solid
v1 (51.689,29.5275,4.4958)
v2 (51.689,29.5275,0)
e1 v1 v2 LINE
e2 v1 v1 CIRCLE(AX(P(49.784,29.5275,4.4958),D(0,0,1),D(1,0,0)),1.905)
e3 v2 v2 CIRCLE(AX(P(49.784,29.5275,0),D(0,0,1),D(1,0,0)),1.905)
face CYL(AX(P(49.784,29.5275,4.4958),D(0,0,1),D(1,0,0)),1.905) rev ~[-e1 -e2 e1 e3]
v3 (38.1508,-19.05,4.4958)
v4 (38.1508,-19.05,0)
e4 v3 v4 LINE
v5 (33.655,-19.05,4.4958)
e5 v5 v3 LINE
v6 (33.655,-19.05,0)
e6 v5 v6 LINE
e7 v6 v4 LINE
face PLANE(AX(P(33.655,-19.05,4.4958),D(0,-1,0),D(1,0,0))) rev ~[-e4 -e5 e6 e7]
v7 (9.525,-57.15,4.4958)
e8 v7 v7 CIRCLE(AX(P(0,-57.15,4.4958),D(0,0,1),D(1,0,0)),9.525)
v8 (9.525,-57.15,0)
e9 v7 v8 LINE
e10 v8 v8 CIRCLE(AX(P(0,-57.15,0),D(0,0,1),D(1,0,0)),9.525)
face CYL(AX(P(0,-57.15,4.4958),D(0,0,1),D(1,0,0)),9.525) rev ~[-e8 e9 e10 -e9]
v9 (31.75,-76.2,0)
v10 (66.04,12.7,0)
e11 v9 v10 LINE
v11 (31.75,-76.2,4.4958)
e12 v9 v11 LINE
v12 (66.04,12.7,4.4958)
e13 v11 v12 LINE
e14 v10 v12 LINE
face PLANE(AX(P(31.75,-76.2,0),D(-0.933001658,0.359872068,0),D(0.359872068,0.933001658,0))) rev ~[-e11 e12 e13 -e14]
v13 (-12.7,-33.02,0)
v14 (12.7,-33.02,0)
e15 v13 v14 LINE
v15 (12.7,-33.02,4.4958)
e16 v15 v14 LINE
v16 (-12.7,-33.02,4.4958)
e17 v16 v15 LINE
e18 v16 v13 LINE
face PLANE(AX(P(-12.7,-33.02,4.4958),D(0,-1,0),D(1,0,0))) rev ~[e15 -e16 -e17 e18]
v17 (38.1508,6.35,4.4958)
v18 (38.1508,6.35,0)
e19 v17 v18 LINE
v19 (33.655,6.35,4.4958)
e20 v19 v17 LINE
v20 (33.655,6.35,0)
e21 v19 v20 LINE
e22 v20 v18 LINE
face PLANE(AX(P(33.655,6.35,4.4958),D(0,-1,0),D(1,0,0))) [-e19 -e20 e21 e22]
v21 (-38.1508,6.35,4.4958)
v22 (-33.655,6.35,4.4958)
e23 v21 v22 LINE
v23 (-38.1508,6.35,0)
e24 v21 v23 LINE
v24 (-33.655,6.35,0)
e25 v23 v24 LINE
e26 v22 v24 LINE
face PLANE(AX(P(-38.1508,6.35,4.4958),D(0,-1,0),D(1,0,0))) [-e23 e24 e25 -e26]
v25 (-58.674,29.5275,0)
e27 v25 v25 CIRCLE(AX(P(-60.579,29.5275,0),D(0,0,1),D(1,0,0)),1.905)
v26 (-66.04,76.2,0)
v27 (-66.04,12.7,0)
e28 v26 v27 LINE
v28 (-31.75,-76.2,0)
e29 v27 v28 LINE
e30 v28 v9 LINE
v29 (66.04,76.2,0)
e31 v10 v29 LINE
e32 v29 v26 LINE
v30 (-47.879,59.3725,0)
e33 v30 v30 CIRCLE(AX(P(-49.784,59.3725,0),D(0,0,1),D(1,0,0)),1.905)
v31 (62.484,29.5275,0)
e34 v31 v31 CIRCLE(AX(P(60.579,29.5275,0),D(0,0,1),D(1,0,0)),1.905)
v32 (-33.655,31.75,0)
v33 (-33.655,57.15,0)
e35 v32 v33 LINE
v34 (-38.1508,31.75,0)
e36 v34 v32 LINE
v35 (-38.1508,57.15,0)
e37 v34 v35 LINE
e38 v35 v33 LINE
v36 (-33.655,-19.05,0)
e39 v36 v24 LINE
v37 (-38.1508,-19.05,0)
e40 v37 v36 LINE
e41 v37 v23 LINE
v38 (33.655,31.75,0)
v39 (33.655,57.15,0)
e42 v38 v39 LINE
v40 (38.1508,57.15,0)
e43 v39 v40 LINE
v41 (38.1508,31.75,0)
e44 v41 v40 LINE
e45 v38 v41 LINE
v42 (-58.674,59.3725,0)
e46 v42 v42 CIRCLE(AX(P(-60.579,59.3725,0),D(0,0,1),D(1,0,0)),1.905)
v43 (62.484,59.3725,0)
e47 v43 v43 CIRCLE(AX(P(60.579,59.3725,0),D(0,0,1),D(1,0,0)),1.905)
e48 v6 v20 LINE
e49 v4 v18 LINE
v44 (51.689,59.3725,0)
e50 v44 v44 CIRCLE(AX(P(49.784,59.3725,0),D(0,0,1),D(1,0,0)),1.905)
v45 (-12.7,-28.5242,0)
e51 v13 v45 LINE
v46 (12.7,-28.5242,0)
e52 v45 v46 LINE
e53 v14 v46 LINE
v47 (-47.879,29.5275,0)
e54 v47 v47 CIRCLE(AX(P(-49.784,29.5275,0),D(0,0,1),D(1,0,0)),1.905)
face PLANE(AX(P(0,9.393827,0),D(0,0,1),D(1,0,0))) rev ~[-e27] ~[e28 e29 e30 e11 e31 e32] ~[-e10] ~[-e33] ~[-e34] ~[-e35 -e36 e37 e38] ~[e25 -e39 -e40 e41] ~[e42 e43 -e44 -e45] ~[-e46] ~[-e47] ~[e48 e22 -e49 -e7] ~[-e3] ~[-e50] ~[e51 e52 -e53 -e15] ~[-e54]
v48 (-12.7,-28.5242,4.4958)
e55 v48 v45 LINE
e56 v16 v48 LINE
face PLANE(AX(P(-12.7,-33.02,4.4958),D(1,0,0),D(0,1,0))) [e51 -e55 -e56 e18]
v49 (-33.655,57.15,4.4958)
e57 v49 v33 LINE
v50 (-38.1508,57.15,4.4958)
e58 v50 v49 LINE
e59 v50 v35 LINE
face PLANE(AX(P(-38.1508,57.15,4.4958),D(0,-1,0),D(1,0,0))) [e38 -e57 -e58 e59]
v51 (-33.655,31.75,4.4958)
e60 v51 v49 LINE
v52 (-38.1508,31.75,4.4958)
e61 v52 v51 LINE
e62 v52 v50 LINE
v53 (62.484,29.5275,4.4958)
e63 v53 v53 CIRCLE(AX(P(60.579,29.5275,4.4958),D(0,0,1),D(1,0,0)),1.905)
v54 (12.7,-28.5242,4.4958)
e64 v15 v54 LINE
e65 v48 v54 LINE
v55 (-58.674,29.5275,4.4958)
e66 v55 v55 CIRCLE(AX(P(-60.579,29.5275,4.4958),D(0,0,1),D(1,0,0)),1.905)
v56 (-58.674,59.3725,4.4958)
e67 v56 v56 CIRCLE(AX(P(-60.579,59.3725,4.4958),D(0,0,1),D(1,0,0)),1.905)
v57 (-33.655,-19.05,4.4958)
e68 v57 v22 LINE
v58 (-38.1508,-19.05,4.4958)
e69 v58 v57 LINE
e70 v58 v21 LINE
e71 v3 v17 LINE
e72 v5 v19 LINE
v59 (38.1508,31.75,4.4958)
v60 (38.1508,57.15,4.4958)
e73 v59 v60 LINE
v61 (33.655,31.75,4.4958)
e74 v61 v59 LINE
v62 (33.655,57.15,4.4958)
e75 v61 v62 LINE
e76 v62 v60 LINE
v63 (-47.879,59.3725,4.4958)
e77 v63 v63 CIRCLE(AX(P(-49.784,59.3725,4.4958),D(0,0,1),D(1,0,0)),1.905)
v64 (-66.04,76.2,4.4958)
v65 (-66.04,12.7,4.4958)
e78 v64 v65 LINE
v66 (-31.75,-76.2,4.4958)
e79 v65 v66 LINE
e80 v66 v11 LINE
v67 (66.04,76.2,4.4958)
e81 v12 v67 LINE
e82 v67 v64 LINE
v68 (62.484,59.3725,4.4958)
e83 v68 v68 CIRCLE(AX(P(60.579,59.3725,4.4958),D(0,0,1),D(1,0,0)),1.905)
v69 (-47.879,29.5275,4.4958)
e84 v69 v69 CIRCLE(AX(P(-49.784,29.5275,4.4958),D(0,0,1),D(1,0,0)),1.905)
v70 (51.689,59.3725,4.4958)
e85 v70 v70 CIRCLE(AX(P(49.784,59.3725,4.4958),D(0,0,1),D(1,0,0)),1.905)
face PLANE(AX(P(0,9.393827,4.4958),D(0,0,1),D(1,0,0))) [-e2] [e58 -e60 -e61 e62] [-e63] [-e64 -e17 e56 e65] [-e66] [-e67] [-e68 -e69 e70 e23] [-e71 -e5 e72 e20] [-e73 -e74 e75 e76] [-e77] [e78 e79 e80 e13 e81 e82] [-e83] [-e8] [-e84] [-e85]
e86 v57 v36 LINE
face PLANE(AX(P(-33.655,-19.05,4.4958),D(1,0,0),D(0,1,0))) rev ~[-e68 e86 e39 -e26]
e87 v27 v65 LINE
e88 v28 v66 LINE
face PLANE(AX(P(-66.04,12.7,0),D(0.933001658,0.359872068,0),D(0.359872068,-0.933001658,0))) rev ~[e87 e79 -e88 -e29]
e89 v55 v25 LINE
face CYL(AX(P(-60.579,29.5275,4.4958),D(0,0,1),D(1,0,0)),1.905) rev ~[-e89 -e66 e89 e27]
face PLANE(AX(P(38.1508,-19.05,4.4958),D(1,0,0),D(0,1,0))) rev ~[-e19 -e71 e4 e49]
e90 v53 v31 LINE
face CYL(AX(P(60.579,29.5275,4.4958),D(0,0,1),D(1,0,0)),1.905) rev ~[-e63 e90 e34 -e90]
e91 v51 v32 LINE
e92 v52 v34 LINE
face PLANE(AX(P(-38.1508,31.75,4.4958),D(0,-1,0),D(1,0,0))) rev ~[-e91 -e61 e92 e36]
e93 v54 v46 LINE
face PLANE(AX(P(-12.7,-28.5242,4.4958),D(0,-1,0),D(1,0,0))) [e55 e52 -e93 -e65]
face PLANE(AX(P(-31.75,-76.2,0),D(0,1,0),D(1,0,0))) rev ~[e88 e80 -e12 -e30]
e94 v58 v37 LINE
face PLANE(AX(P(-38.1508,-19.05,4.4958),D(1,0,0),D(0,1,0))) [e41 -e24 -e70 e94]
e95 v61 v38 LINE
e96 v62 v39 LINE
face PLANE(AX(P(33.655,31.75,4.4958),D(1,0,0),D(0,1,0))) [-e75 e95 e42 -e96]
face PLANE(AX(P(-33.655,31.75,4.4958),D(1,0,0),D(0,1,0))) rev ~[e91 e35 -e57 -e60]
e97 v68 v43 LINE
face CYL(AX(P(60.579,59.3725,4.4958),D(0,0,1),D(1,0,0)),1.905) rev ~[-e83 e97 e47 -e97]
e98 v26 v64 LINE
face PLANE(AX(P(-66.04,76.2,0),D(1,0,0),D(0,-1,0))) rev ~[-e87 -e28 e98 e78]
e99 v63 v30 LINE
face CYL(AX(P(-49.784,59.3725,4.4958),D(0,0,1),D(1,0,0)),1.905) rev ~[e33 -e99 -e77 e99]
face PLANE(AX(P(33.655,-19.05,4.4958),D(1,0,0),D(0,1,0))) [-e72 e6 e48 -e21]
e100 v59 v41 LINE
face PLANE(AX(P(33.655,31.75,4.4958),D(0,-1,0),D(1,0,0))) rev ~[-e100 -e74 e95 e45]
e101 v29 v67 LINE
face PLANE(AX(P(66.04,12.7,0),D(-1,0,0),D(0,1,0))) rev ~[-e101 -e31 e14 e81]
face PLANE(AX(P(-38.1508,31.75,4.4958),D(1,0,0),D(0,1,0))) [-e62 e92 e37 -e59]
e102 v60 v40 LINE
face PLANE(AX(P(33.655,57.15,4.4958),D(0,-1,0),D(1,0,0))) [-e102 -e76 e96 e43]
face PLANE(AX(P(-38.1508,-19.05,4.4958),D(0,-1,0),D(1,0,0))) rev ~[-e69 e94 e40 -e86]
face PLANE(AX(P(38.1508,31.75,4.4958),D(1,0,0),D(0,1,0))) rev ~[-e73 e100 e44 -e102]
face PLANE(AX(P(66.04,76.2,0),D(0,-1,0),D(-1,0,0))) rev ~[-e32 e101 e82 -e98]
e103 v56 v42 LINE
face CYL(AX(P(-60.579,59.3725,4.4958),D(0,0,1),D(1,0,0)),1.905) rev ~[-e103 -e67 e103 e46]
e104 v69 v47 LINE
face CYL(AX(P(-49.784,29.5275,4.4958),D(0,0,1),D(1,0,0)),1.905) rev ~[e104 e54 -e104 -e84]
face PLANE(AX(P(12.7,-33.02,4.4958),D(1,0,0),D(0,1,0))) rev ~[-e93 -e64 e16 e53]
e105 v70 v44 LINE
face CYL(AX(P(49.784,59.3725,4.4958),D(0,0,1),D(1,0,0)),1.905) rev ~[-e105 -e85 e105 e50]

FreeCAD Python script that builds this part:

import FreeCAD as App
import Part
import Sketcher

V = App.Vector
Q = App.Units.Quantity


def add_polygon(sketch, points):
    """Adds a closed chain of lines whose ends are joined by coincident constraints."""
    first, n = sketch.GeometryCount, len(points)
    for a, b in zip(points, points[1:] + points[:1]):
        sketch.addGeometry(Part.LineSegment(App.Vector(*a, 0), App.Vector(*b, 0)), False)
    for i in range(n):
        sketch.addConstraint(Sketcher.Constraint("Coincident", first + i, 2, first + (i + 1) % n, 1))

doc = App.newDocument("Part")
params = doc.addObject("Spreadsheet::Sheet", "Params")
for row, (alias, value) in enumerate([
    ("sketch1_width", "5.2 in"),
    ("sketch1_width2", "2.5 in"),
    ("pad1_length", "0.177 in"),
    ("sketch2_diameter", "0.15 in"),
    ("sketch3_diameter", "0.75 in"),
    ("sketch3_width", "1 in"),
    ("sketch3_width2", "0.177 in"),
], start=1):
    params.set(f"A{row}", alias)
    params.set(f"B{row}", "=" + value)
    params.setAlias(f"B{row}", alias)

body = doc.addObject("PartDesign::Body", "Body")

# Sketch on XY plane
sketch1 = body.newObject("Sketcher::SketchObject", "Sketch")
sketch1.AttachmentSupport = (doc.getObject("XY_Plane"), [""])
sketch1.MapMode = "FlatFace"
add_polygon(sketch1, [(66.04, 76.2), (-66.04, 76.2), (-66.04, 12.7), (-31.75, -76.2), (31.75, -76.2), (66.04, 12.7)])  # lines 0-5
sketch1.addConstraint([
    Sketcher.Constraint("Horizontal", 0),
    Sketcher.Constraint("Vertical", 1),
    Sketcher.Constraint("Horizontal", 3),
    Sketcher.Constraint("Vertical", 5),
    Sketcher.Constraint("Symmetric", 1, 2, 4, 2, -2),
    Sketcher.Constraint("Equal", 3, 1),
    Sketcher.Constraint("Equal", 2, 4),
    Sketcher.Constraint("DistanceX", 0, 2, 0, 1, Q("5.2 in")),
    Sketcher.Constraint("DistanceX", 3, 1, 3, 2, Q("2.5 in")),
    Sketcher.Constraint("DistanceY", -1, 1, 0, 2, Q("3 in")),
    Sketcher.Constraint("DistanceY", 2, 2, -1, 1, Q("3 in")),
])
sketch1.setExpression("Constraints[13]", "Params.sketch1_width")
sketch1.setExpression("Constraints[14]", "Params.sketch1_width2")
pad1 = body.newObject("PartDesign::Pad", "Pad")
pad1.Profile = sketch1
pad1.setExpression("Length", "Params.pad1_length")

# Sketch on XY plane
sketch2 = body.newObject("Sketcher::SketchObject", "Sketch001")
sketch2.AttachmentSupport = (doc.getObject("XY_Plane"), [""])
sketch2.MapMode = "FlatFace"
sketch2.AttachmentOffset = App.Placement(V(0, 0, 0.177 * 25.4), App.Rotation())
sketch2.addGeometry([
    Part.Circle(V(-60.579, 59.3725, 0), V(0, 0, 1), 1.905),  # 0
    Part.Circle(V(-49.784, 59.3725, 0), V(0, 0, 1), 1.905),  # 1
    Part.Circle(V(-49.784, 29.5275, 0), V(0, 0, 1), 1.905),  # 2
    Part.Circle(V(-60.579, 29.5275, 0), V(0, 0, 1), 1.905),  # 3
    Part.Circle(V(60.579, 59.3725, 0), V(0, 0, 1), 1.905),  # 4
    Part.Circle(V(49.784, 29.5275, 0), V(0, 0, 1), 1.905),  # 5
    Part.Circle(V(49.784, 59.3725, 0), V(0, 0, 1), 1.905),  # 6
    Part.Circle(V(60.579, 29.5275, 0), V(0, 0, 1), 1.905),  # 7
], False)
sketch2.addConstraint([
    Sketcher.Constraint("Equal", 0, 1),
    Sketcher.Constraint("Equal", 1, 2),
    Sketcher.Constraint("Equal", 2, 3),
    Sketcher.Constraint("Equal", 3, 4),
    Sketcher.Constraint("Equal", 4, 5),
    Sketcher.Constraint("Equal", 5, 6),
    Sketcher.Constraint("Equal", 6, 7),
    Sketcher.Constraint("Symmetric", 0, 3, 4, 3, -2),
    Sketcher.Constraint("Symmetric", 2, 3, 5, 3, -2),
    Sketcher.Constraint("Symmetric", 1, 3, 6, 3, -2),
    Sketcher.Constraint("Symmetric", 3, 3, 7, 3, -2),
    Sketcher.Constraint("Horizontal", 0, 3, 1, 3),
    Sketcher.Constraint("Horizontal", 2, 3, 3, 3),
    Sketcher.Constraint("Vertical", 1, 3, 2, 3),
    Sketcher.Constraint("Vertical", 0, 3, 3, 3),
    Sketcher.Constraint("Diameter", 0, Q("0.15 in")),
    Sketcher.Constraint("DistanceX", 1, 3, -1, 1, Q("1.96 in")),
    Sketcher.Constraint("DistanceX", 0, 3, 4, 3, Q("4.77 in")),
    Sketcher.Constraint("DistanceY", 2, 3, 1, 3, Q("1.175 in")),
    Sketcher.Constraint("DistanceY", -1, 1, 0, 3, Q("2.3375 in")),
])
sketch2.setExpression("Constraints[15]", "Params.sketch2_diameter")
pocket1 = body.newObject("PartDesign::Pocket", "Pocket")
pocket1.Profile = sketch2
pocket1.Type = "ThroughAll"

# Sketch on XY plane
sketch3 = body.newObject("Sketcher::SketchObject", "Sketch002")
sketch3.AttachmentSupport = (doc.getObject("XY_Plane"), [""])
sketch3.MapMode = "FlatFace"
sketch3.AttachmentOffset = App.Placement(V(0, 0, 0.177 * 25.4), App.Rotation())
add_polygon(sketch3, [(-38.1508, 57.15), (-38.1508, 31.75), (-33.655, 31.75), (-33.655, 57.15)])  # lines 0-3
add_polygon(sketch3, [(-38.1508, 6.35), (-38.1508, -19.05), (-33.655, -19.05), (-33.655, 6.35)])  # lines 4-7
add_polygon(sketch3, [(33.655, 57.15), (33.655, 31.75), (38.1508, 31.75), (38.1508, 57.15)])  # lines 8-11
add_polygon(sketch3, [(33.655, 6.35), (33.655, -19.05), (38.1508, -19.05), (38.1508, 6.35)])  # lines 12-15
sketch3.addGeometry(Part.Circle(V(0, -57.15, 0), V(0, 0, 1), 9.525), False)  # 16
add_polygon(sketch3, [(-12.7, -28.5242), (-12.7, -33.02), (12.7, -33.02), (12.7, -28.5242)])  # lines 17-20
sketch3.addConstraint([
    Sketcher.Constraint("Vertical", 0),
    Sketcher.Constraint("Horizontal", 1),
    Sketcher.Constraint("Vertical", 2),
    Sketcher.Constraint("Horizontal", 3),
    Sketcher.Constraint("Vertical", 4),
    Sketcher.Constraint("Horizontal", 5),
    Sketcher.Constraint("Vertical", 6),
    Sketcher.Constraint("Horizontal", 7),
    Sketcher.Constraint("Vertical", 8),
    Sketcher.Constraint("Horizontal", 9),
    Sketcher.Constraint("Vertical", 10),
    Sketcher.Constraint("Horizontal", 11),
    Sketcher.Constraint("Vertical", 12),
    Sketcher.Constraint("Horizontal", 13),
    Sketcher.Constraint("Vertical", 14),
    Sketcher.Constraint("Horizontal", 15),
    Sketcher.Constraint("Vertical", 17),
    Sketcher.Constraint("Horizontal", 18),
    Sketcher.Constraint("Vertical", 19),
    Sketcher.Constraint("Horizontal", 20),
    Sketcher.Constraint("Symmetric", 1, 2, 8, 2, -2),
    Sketcher.Constraint("Symmetric", 3, 2, 10, 2, -2),
    Sketcher.Constraint("Symmetric", 5, 2, 12, 2, -2),
    Sketcher.Constraint("Symmetric", 7, 2, 14, 2, -2),
    Sketcher.Constraint("PointOnObject", 16, 3, -2),
    Sketcher.Constraint("Vertical", 3, 2, 4, 2),
    Sketcher.Constraint("Vertical", 2, 2, 5, 2),
    Sketcher.Constraint("Equal", 20, 0),
    Sketcher.Constraint("Equal", 2, 4),
    Sketcher.Constraint("Equal", 15, 17),
    Sketcher.Constraint("Diameter", 16, Q("0.75 in")),
    Sketcher.Constraint("DistanceX", 18, 1, 18, 2, Q("1 in")),
    Sketcher.Constraint("DistanceY", 4, 2, 0, 2, Q("2 in")),
    Sketcher.Constraint("DistanceX", 17, 2, -1, 1, Q("0.5 in")),
    Sketcher.Constraint("DistanceY", 17, 2, -1, 1, Q("1.3 in")),
    Sketcher.Constraint("DistanceY", 16, 3, 0, 2, Q("3.5 in")),
    Sketcher.Constraint("DistanceX", 1, 1, 1, 2, Q("0.177 in")),
    Sketcher.Constraint("DistanceY", 16, 3, -1, 1, Q("2.25 in")),
    Sketcher.Constraint("DistanceX", 1, 2, 8, 2, Q("2.65 in")),
])
sketch3.setExpression("Constraints[50]", "Params.sketch3_diameter")
sketch3.setExpression("Constraints[51]", "Params.sketch3_width")
sketch3.setExpression("Constraints[56]", "Params.sketch3_width2")
pocket2 = body.newObject("PartDesign::Pocket", "Pocket001")
pocket2.Profile = sketch3
pocket2.Type = "ThroughAll"

doc.recompute()
